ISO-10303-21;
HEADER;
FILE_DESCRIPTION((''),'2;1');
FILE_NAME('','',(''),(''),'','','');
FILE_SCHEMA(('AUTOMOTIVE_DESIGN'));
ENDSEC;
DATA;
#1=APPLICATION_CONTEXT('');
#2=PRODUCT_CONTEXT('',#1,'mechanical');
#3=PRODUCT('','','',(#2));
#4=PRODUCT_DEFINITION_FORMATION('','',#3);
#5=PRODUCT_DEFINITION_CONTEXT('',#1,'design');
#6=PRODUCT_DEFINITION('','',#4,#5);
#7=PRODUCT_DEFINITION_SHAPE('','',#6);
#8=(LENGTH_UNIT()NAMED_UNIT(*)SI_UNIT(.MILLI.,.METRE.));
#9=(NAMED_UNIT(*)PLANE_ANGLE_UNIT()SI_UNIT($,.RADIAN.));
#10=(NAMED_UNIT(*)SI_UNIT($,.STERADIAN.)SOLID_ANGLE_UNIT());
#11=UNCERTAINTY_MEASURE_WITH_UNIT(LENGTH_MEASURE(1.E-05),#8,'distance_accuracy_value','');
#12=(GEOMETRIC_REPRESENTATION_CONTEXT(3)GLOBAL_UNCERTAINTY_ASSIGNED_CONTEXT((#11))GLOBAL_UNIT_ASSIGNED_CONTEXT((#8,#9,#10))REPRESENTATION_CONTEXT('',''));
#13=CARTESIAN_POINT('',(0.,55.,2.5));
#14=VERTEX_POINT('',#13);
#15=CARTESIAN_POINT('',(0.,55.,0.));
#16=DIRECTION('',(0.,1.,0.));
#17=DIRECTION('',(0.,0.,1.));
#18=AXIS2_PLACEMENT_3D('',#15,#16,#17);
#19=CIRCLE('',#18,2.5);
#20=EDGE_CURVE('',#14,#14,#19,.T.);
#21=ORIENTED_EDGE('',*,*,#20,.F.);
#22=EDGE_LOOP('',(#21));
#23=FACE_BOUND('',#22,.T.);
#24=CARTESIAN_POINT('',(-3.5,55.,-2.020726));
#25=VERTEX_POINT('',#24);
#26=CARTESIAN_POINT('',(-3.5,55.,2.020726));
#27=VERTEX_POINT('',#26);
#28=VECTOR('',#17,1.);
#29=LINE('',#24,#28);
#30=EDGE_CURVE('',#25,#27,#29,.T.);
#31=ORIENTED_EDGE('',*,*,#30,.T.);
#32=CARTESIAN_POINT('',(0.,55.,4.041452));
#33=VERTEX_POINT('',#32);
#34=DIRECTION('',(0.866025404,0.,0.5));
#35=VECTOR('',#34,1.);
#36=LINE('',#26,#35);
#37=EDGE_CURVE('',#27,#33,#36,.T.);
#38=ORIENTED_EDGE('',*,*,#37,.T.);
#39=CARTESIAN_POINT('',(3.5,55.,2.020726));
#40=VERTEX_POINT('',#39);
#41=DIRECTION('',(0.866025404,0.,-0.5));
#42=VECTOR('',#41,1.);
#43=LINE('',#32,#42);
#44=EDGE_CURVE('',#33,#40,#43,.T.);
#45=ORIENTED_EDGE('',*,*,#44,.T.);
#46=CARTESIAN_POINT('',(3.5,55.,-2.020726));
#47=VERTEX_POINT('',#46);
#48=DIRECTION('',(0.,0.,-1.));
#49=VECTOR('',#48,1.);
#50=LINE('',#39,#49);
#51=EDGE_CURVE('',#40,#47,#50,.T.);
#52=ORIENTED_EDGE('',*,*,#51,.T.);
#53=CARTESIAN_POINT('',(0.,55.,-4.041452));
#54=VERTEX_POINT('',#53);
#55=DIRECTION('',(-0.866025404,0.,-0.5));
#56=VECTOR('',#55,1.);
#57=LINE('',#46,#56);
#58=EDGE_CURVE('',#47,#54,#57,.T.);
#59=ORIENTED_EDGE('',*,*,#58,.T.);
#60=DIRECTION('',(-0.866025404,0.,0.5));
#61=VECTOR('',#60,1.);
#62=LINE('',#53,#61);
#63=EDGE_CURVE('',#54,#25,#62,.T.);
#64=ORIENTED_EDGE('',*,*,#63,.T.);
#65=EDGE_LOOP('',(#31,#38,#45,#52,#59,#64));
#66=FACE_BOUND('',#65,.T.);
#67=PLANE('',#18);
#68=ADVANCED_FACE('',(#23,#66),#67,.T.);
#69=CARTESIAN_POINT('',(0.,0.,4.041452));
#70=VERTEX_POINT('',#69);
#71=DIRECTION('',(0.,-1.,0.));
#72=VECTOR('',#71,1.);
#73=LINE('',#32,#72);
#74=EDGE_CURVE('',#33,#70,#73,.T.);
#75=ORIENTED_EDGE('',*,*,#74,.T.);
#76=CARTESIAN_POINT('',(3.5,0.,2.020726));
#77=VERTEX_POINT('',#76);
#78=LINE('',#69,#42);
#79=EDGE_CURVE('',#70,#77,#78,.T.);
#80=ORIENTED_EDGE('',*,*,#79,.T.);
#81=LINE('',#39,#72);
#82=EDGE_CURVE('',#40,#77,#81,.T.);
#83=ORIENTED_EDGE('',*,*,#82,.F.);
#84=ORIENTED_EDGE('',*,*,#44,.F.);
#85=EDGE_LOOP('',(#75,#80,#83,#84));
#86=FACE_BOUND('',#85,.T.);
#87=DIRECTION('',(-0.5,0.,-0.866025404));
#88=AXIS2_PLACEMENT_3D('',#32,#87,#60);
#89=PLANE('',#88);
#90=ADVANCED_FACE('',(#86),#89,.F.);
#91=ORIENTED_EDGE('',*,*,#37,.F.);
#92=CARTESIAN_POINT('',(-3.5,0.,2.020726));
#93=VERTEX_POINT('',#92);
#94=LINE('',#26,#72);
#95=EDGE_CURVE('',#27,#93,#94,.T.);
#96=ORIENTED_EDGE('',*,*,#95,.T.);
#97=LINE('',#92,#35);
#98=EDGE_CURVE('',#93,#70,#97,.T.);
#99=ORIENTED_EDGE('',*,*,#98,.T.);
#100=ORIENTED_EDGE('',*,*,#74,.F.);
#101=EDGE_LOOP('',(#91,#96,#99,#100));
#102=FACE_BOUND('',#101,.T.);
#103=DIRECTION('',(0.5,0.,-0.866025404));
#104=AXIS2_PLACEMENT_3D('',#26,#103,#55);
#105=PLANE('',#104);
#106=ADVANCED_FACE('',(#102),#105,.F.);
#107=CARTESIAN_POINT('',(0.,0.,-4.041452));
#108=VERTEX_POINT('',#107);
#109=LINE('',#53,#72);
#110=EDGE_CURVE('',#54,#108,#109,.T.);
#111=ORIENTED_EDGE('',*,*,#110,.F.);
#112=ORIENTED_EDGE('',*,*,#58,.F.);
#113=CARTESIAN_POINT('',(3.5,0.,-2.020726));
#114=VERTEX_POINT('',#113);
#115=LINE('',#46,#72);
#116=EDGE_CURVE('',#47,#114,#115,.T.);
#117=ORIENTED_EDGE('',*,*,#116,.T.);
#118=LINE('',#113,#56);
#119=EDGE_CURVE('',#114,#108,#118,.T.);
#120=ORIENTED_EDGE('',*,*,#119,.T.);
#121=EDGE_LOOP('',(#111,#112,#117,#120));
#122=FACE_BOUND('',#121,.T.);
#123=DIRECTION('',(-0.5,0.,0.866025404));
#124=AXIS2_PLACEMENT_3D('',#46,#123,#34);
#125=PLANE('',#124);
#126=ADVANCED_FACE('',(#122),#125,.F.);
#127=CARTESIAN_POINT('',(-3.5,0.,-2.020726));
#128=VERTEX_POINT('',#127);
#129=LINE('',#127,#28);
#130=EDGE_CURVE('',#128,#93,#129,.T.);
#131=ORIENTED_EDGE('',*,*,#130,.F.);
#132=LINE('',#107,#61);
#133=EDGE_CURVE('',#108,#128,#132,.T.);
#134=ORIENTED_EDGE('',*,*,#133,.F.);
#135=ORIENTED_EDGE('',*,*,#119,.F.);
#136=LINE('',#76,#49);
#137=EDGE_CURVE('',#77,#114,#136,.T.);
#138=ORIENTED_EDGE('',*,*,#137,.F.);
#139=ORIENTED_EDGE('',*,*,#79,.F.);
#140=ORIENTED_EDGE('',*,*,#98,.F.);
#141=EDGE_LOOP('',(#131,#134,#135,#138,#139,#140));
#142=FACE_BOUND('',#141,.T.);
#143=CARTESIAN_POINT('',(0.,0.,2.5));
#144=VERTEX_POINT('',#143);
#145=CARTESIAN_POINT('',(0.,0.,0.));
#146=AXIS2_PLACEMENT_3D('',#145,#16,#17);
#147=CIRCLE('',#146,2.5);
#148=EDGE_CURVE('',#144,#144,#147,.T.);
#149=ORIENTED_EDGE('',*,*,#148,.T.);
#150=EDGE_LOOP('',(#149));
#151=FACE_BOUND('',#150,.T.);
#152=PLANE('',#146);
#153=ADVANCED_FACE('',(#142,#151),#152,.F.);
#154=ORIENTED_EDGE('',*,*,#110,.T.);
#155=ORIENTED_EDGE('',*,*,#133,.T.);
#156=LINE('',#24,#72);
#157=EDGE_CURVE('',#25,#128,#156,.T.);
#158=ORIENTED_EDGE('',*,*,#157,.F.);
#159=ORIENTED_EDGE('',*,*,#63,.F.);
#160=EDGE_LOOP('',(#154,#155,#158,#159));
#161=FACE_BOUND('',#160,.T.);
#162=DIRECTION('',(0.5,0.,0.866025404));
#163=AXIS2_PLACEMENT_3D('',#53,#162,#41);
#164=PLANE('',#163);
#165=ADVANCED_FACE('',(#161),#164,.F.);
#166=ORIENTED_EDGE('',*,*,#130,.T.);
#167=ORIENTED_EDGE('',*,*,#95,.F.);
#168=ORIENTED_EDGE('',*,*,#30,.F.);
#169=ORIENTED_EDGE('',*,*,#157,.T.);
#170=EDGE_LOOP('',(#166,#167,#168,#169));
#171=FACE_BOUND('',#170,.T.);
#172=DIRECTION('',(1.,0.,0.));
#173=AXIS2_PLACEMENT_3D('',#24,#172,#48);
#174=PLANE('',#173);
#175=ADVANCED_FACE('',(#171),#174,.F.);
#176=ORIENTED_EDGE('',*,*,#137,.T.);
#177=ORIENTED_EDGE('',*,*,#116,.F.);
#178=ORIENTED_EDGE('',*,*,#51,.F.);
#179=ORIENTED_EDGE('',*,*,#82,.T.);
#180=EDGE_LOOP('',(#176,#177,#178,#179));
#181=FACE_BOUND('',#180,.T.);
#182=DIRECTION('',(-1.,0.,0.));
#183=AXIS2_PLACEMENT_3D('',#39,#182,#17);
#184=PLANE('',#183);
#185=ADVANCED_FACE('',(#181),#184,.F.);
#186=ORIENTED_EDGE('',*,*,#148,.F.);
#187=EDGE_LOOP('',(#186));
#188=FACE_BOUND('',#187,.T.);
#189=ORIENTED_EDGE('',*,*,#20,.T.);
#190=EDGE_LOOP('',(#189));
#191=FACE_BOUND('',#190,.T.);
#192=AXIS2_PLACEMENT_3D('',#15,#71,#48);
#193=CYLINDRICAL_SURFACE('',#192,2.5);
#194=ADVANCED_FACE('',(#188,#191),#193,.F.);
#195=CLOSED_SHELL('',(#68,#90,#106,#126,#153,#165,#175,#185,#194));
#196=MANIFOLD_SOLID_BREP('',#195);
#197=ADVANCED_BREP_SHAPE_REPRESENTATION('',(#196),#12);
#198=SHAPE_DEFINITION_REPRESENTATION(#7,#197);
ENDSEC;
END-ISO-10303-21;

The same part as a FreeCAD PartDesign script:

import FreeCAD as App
import Part
import Sketcher
from FreeCAD import Vector
Q = App.Units.Quantity

doc = App.newDocument("Part")
body = doc.addObject("PartDesign::Body", "Body")

# Sketch on XZ plane
sketch1 = body.newObject("Sketcher::SketchObject", "Sketch")
sketch1.AttachmentSupport = (doc.getObject("XZ_Plane"), [""])
sketch1.MapMode = "FlatFace"
sketch1.addGeometry([
    Part.LineSegment(Vector(0, -4, 0), Vector(-3.5, -2, 0)),  # 0
    Part.LineSegment(Vector(-3.5, -2, 0), Vector(-3.5, 2, 0)),  # 1
    Part.LineSegment(Vector(-3.5, 2, 0), Vector(0, 4, 0)),  # 2
    Part.LineSegment(Vector(0, 4, 0), Vector(3.5, 2, 0)),  # 3
    Part.LineSegment(Vector(3.5, 2, 0), Vector(3.5, -2, 0)),  # 4
    Part.LineSegment(Vector(3.5, -2, 0), Vector(0, -4, 0)),  # 5
    Part.Circle(Vector(0, 0, 0), Vector(0, 0, 1), 2.5),  # 6
], False)
sketch1.addConstraint([
    Sketcher.Constraint("Coincident", 0, 2, 1, 1),
    Sketcher.Constraint("Coincident", 1, 2, 2, 1),
    Sketcher.Constraint("Coincident", 2, 2, 3, 1),
    Sketcher.Constraint("Coincident", 3, 2, 4, 1),
    Sketcher.Constraint("Coincident", 4, 2, 5, 1),
    Sketcher.Constraint("Coincident", 5, 2, 0, 1),
    Sketcher.Constraint("Vertical", 1),
    Sketcher.Constraint("Vertical", 4),
    Sketcher.Constraint("Coincident", 6, 3, -1, 1),
    Sketcher.Constraint("Symmetric", 0, 2, 3, 2, -1, 1),
    Sketcher.Constraint("Symmetric", 2, 2, 5, 2, -1, 1),
    Sketcher.Constraint("PointOnObject", 2, 2, -2),
    Sketcher.Constraint("Parallel", 2, 5),
    Sketcher.Constraint("Horizontal", 1, 2, 3, 2),
    Sketcher.Constraint("Diameter", 6, 5.0),
    Sketcher.Constraint("Angle", 0, Q("150 deg")),
    Sketcher.Constraint("DistanceX", 1, 2, 3, 2, 7.0),
    Sketcher.Constraint("DistanceY", 1, 1, 1, 2, 4.041452),
])
pad1 = body.newObject("PartDesign::Pad", "Pad")
pad1.Profile = sketch1
pad1.Length = 55
pad1.Reversed = True

doc.recompute()
